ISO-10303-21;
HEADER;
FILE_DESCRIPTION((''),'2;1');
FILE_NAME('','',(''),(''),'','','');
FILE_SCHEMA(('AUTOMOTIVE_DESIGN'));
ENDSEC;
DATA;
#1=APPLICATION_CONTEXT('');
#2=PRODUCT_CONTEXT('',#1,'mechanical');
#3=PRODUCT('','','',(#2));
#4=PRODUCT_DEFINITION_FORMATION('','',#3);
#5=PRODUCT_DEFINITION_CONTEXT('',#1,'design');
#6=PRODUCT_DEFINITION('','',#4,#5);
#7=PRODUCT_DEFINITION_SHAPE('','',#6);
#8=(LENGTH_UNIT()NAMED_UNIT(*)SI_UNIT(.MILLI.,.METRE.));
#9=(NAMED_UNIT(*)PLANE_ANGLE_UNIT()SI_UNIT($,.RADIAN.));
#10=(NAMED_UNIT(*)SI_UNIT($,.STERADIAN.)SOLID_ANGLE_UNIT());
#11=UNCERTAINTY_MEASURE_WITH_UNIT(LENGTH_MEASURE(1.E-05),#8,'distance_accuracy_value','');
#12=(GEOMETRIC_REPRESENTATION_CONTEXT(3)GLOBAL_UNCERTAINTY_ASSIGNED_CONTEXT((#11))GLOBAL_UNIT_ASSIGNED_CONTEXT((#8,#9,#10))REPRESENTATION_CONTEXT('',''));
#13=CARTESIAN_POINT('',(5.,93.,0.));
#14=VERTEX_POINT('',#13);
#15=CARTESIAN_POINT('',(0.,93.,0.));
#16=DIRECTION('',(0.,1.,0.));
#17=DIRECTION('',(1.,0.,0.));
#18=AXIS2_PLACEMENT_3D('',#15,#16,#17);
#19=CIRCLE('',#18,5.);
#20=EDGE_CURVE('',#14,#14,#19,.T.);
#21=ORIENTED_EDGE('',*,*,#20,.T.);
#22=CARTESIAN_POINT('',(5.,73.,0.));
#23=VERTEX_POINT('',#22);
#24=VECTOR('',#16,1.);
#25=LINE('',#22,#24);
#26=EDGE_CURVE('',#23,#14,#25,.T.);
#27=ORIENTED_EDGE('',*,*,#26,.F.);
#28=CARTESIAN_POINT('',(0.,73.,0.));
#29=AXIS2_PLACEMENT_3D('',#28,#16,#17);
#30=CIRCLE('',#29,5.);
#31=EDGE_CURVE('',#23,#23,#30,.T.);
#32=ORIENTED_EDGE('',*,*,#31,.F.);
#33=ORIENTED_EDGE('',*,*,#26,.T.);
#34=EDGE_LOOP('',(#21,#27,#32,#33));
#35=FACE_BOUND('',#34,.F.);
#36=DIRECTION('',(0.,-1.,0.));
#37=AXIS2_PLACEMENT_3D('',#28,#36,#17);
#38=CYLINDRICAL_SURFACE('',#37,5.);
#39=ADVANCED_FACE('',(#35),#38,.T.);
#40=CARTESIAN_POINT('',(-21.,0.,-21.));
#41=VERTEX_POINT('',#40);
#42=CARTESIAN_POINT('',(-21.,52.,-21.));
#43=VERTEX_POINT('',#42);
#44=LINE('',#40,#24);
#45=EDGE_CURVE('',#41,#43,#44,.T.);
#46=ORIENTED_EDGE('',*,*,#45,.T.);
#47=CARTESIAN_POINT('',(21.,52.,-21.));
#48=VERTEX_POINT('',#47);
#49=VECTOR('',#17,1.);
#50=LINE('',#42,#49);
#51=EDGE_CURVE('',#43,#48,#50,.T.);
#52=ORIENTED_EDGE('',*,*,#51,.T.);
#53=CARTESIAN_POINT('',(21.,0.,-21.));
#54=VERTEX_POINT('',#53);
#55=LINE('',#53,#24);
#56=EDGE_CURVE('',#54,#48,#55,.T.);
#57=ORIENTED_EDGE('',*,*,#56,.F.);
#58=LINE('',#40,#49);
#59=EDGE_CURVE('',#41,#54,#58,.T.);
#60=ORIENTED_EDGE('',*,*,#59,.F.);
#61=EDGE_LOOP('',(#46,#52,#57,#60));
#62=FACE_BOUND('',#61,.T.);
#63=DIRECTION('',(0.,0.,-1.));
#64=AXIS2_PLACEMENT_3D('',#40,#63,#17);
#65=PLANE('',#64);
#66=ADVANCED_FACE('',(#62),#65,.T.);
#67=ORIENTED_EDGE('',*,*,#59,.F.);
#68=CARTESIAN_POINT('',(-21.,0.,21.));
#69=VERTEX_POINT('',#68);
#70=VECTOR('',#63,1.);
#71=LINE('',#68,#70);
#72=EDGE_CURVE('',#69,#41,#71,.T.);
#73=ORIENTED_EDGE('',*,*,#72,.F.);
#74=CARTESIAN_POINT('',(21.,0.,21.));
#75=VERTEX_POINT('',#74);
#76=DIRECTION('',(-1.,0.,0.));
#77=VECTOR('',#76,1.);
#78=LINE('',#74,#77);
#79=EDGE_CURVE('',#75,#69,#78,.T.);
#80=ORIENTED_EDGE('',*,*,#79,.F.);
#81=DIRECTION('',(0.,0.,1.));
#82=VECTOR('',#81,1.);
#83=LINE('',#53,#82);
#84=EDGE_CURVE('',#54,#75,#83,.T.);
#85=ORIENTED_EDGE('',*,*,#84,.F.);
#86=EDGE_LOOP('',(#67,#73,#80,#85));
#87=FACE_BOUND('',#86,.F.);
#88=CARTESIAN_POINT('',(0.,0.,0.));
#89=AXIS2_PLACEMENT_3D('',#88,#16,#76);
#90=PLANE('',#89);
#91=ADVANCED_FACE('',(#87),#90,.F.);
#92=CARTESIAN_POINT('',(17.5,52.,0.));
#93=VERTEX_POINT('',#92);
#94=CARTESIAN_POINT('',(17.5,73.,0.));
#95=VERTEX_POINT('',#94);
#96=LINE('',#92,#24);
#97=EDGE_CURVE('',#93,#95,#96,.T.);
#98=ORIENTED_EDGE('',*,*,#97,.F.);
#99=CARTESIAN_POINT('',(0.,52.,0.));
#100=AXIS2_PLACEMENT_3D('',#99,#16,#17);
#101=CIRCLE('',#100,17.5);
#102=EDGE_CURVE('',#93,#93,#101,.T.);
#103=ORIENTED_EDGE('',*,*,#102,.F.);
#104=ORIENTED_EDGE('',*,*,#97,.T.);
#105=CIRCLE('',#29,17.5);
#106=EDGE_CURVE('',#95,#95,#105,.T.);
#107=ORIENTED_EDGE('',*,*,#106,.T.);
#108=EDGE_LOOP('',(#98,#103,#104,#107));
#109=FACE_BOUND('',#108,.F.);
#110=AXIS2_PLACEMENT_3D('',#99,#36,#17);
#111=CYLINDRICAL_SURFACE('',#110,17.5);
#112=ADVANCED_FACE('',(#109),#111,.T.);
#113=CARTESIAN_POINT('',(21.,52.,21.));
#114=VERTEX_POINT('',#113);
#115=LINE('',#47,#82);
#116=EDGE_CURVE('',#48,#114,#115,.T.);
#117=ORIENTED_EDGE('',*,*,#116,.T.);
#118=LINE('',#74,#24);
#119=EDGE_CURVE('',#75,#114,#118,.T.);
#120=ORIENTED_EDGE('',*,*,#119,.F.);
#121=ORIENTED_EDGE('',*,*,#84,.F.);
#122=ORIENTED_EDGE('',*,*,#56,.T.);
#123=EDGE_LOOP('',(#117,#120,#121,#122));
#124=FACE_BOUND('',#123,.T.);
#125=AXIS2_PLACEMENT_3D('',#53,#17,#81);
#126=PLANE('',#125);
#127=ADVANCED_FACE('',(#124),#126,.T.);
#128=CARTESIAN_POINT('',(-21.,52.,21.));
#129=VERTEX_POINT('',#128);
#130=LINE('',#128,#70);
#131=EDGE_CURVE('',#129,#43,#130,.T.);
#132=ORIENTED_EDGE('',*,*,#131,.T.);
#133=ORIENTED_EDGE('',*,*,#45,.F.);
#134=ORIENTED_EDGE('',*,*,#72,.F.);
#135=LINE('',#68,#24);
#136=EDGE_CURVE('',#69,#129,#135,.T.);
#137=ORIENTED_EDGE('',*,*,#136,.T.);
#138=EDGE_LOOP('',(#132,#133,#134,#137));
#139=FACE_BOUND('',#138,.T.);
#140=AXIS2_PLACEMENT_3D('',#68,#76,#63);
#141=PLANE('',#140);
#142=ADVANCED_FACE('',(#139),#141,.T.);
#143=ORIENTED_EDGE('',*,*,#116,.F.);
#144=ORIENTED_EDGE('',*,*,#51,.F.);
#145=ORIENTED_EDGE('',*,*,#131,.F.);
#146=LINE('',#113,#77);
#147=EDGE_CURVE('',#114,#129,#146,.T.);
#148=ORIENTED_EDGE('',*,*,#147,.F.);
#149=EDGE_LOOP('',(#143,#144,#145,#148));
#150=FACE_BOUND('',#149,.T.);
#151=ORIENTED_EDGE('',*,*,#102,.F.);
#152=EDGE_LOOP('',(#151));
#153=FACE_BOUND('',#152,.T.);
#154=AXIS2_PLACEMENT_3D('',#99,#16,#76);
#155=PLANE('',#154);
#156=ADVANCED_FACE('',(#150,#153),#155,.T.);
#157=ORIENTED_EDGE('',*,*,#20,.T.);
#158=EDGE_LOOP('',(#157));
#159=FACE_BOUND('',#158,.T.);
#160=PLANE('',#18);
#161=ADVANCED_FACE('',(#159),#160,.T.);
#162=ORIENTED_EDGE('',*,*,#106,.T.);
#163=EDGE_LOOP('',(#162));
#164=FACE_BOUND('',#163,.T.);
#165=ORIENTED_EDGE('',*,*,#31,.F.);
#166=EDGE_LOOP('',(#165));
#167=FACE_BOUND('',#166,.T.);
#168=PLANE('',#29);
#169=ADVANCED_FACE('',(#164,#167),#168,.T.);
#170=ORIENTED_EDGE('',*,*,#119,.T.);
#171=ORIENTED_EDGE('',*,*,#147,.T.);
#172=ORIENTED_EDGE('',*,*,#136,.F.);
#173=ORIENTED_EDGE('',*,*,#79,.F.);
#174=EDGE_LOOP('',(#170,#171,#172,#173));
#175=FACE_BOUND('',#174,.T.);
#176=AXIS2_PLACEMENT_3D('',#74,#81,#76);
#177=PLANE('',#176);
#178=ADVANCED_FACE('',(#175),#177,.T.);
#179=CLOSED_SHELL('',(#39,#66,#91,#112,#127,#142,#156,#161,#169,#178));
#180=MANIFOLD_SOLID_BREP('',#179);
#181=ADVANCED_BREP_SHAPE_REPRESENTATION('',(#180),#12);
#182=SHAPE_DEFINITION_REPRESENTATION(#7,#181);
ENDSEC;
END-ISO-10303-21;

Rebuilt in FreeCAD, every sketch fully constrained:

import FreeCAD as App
import Part
import Sketcher

V = App.Vector

doc = App.newDocument("Part")
body = doc.addObject("PartDesign::Body", "Body")

# Sketch on XZ plane
sketch1 = body.newObject("Sketcher::SketchObject", "Sketch")
sketch1.AttachmentSupport = (doc.getObject("XZ_Plane"), [""])
sketch1.MapMode = "FlatFace"
sketch1.addGeometry([
    Part.LineSegment(V(-21, 21, 0), V(21, 21, 0)),
    Part.LineSegment(V(21, 21, 0), V(21, -21, 0)),
    Part.LineSegment(V(21, -21, 0), V(-21, -21, 0)),
    Part.LineSegment(V(-21, -21, 0), V(-21, 21, 0)),
], False)
sketch1.addConstraint([
    Sketcher.Constraint("Coincident", 0, 2, 1, 1),
    Sketcher.Constraint("Coincident", 1, 2, 2, 1),
    Sketcher.Constraint("Coincident", 2, 2, 3, 1),
    Sketcher.Constraint("Coincident", 3, 2, 0, 1),
    Sketcher.Constraint("Horizontal", 0),
    Sketcher.Constraint("Vertical", 1),
    Sketcher.Constraint("Horizontal", 2),
    Sketcher.Constraint("Vertical", 3),
    Sketcher.Constraint("Symmetric", 0, 2, 2, 2, -1, 1),
    Sketcher.Constraint("Equal", 2, 1),
    Sketcher.Constraint("DistanceX", 0, 1, 0, 2, 42.0),
])
pad1 = body.newObject("PartDesign::Pad", "Pad")
pad1.Profile = sketch1
pad1.Length = 52
pad1.Reversed = True

# Sketch on XZ plane
sketch2 = body.newObject("Sketcher::SketchObject", "Sketch001")
sketch2.AttachmentSupport = (doc.getObject("XZ_Plane"), [""])
sketch2.MapMode = "FlatFace"
sketch2.AttachmentOffset = App.Placement(V(0, 0, -52), App.Rotation())
sketch2.addGeometry(Part.Circle(V(0, 0, 0), V(0, 0, 1), 17.5), False)
sketch2.addConstraint([
    Sketcher.Constraint("Coincident", 0, 3, -1, 1),
    Sketcher.Constraint("Diameter", 0, 35.0),
])
pad2 = body.newObject("PartDesign::Pad", "Pad001")
pad2.Profile = sketch2
pad2.Length = 21
pad2.Reversed = True

# Sketch on XZ plane
sketch3 = body.newObject("Sketcher::SketchObject", "Sketch002")
sketch3.AttachmentSupport = (doc.getObject("XZ_Plane"), [""])
sketch3.MapMode = "FlatFace"
sketch3.AttachmentOffset = App.Placement(V(0, 0, -73), App.Rotation())
sketch3.addGeometry(Part.Circle(V(0, 0, 0), V(0, 0, 1), 5), False)
sketch3.addConstraint([
    Sketcher.Constraint("Coincident", 0, 3, -1, 1),
    Sketcher.Constraint("Diameter", 0, 10.0),
])
pad3 = body.newObject("PartDesign::Pad", "Pad002")
pad3.Profile = sketch3
pad3.Length = 20
pad3.Reversed = True

doc.recompute()
